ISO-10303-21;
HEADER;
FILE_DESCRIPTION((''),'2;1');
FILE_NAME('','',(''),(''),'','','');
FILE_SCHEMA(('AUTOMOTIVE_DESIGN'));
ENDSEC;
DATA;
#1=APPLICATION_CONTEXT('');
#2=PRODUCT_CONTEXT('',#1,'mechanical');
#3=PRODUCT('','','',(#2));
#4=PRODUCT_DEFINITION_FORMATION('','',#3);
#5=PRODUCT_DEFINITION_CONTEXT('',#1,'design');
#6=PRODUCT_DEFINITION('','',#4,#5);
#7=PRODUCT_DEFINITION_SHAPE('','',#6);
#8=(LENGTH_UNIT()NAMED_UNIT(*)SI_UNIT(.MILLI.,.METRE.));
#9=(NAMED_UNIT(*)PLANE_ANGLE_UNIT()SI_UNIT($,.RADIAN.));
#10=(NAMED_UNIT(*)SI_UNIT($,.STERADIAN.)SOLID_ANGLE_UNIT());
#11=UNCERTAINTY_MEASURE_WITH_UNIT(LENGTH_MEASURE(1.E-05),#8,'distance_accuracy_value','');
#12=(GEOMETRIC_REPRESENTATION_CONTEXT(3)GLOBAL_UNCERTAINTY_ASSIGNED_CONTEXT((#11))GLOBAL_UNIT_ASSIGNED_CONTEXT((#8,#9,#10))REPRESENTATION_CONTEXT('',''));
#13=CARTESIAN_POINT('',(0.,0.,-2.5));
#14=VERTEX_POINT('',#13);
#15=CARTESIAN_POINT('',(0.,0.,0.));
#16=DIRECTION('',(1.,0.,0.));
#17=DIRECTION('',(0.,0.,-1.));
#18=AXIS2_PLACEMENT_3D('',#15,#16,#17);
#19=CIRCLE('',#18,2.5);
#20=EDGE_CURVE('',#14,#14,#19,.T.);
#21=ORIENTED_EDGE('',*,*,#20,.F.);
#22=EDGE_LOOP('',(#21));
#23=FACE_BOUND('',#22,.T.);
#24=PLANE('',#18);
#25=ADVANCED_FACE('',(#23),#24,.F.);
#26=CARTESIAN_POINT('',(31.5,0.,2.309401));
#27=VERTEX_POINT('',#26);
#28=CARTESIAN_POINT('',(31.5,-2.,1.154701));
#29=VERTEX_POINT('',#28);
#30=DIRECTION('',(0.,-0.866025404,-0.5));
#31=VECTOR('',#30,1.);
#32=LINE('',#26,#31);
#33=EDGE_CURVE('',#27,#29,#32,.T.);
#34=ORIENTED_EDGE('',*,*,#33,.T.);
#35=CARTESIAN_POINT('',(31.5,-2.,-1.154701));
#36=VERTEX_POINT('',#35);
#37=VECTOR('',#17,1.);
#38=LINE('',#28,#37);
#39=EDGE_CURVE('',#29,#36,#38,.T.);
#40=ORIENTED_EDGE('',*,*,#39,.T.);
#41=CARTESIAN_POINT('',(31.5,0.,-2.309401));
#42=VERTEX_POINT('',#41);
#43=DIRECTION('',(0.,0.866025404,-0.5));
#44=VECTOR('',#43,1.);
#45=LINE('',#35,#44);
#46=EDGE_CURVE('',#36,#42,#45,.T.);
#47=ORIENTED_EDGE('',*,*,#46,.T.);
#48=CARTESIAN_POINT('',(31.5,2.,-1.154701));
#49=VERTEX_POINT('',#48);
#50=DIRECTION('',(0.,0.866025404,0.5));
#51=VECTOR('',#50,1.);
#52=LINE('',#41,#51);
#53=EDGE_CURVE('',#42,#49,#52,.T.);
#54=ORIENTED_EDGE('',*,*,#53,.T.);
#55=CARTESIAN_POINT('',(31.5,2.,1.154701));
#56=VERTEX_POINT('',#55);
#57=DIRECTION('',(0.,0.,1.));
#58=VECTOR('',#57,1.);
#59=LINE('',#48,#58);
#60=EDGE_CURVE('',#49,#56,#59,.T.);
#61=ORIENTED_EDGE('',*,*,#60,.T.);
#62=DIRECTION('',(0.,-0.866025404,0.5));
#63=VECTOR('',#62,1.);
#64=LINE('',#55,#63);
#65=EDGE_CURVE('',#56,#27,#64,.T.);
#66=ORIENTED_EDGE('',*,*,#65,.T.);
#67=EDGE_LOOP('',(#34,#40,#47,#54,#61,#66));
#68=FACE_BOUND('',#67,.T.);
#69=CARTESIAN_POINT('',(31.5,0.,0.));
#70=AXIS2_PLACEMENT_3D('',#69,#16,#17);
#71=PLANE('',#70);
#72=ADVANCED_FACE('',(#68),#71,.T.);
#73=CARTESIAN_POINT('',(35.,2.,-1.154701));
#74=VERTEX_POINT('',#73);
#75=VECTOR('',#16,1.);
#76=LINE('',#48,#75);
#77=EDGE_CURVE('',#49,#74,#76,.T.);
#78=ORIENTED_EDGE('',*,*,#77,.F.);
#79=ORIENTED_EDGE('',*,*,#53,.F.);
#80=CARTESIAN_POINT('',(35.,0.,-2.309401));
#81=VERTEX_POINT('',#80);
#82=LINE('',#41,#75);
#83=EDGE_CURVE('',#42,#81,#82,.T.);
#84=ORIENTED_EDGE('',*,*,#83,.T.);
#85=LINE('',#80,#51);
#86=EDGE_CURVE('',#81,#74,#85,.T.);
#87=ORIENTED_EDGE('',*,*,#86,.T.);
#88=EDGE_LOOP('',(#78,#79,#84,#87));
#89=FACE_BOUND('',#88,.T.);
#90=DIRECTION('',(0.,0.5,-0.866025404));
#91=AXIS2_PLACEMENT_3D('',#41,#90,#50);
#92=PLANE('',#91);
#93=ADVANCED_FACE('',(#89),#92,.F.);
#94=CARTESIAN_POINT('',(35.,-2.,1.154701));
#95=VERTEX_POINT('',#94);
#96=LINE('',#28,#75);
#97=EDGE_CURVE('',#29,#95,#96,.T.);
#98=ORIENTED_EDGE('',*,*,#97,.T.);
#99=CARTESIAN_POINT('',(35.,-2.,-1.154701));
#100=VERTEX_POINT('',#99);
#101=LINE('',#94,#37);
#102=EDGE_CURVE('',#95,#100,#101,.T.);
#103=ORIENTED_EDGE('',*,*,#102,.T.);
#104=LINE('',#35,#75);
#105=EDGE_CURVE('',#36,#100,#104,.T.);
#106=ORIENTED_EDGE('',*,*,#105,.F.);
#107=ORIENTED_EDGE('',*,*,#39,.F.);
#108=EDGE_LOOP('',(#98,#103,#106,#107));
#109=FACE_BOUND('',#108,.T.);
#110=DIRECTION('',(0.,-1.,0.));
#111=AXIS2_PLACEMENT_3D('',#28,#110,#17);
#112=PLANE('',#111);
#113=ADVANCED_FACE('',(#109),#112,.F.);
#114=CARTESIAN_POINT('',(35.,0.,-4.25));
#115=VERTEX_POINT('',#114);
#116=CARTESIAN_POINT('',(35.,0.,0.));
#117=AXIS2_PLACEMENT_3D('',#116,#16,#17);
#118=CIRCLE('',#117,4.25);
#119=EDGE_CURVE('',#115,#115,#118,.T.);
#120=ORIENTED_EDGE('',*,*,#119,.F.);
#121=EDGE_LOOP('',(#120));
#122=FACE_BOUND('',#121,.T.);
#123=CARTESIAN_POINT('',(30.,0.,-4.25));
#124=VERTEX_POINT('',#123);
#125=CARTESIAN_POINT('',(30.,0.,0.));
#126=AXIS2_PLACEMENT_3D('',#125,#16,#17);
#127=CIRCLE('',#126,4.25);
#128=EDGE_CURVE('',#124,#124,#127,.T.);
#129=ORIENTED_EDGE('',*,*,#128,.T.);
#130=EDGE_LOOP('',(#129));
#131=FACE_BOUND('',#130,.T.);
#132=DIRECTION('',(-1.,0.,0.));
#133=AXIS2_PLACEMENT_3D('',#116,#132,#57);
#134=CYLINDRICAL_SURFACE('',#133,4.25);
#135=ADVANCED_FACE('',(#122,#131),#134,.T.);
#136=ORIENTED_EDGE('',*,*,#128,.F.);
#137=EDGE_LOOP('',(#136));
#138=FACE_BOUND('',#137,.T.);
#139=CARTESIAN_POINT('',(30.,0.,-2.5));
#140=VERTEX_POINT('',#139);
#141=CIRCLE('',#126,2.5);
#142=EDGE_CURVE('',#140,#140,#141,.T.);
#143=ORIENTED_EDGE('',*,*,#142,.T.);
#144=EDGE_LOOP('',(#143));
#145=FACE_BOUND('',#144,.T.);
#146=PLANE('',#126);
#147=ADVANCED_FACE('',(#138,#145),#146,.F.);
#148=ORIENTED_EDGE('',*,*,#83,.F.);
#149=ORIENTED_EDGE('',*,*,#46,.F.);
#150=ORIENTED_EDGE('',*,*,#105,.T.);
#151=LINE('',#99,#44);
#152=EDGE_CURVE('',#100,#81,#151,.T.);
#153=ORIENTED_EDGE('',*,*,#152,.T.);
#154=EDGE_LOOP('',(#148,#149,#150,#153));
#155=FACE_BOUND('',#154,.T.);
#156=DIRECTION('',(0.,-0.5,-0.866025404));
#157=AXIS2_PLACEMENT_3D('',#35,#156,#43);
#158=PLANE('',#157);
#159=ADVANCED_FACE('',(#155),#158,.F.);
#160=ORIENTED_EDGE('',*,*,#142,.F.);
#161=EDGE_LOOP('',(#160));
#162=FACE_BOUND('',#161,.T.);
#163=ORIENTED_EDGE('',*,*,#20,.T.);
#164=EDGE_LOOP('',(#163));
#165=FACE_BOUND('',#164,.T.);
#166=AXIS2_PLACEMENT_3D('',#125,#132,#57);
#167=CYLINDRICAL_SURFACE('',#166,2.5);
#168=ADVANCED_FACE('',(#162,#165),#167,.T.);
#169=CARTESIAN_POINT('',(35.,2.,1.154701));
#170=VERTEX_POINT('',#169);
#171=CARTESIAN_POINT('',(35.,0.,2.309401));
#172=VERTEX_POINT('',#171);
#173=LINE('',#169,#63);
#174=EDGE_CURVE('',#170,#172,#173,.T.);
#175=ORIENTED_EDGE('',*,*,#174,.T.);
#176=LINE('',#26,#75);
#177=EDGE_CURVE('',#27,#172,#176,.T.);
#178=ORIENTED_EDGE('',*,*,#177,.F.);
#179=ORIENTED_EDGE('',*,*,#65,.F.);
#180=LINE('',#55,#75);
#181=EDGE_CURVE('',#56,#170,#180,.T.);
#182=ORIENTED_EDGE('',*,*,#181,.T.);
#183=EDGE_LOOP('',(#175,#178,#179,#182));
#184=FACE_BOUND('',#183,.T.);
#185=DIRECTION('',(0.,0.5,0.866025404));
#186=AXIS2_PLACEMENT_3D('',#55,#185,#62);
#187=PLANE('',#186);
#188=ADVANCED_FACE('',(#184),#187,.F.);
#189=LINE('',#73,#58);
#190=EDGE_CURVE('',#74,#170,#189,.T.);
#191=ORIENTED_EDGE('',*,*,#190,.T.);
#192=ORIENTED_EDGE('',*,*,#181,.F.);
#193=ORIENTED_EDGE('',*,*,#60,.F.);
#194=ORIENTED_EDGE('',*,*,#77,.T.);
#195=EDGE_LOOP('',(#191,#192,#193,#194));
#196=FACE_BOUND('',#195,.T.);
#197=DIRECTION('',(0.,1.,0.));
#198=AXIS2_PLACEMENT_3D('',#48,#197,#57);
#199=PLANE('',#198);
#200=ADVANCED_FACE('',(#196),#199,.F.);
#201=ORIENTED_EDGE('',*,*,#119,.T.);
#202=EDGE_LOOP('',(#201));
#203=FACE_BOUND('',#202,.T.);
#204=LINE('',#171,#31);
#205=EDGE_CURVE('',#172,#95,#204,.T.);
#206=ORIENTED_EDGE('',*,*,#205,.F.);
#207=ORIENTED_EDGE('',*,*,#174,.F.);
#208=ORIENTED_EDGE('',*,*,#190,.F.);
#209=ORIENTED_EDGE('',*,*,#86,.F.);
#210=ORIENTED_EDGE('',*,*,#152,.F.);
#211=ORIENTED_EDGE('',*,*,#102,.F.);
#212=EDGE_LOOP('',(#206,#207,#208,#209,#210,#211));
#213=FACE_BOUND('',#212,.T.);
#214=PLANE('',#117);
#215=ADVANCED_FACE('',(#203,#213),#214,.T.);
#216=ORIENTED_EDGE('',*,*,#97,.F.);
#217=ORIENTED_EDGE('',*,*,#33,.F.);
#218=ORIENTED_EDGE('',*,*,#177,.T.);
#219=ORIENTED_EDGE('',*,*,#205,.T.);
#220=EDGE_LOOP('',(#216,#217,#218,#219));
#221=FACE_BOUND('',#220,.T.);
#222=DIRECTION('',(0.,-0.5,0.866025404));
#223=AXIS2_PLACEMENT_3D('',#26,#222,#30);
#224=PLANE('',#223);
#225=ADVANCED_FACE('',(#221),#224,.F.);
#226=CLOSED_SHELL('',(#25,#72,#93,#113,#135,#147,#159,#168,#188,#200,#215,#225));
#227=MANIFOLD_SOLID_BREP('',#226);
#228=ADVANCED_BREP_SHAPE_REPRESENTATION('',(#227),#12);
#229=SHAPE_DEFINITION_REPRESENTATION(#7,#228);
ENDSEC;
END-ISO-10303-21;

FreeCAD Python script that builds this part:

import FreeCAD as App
import Part
import Sketcher
Q = App.Units.Quantity


def add_polygon(sketch, points):
    """Adds a closed chain of lines whose ends are joined by coincident constraints."""
    first, n = sketch.GeometryCount, len(points)
    for a, b in zip(points, points[1:] + points[:1]):
        sketch.addGeometry(Part.LineSegment(App.Vector(*a, 0), App.Vector(*b, 0)), False)
    for i in range(n):
        sketch.addConstraint(Sketcher.Constraint("Coincident", first + i, 2, first + (i + 1) % n, 1))

doc = App.newDocument("Part")
body = doc.addObject("PartDesign::Body", "Body")

# Sketch on YZ plane
sketch1 = doc.addObject("Sketcher::SketchObject", "Sketch")
body.addObject(sketch1)
sketch1.AttachmentSupport = (doc.YZ_Plane, [""])
sketch1.MapMode = "FlatFace"
sketch1.addGeometry(Part.Circle(App.Vector(0, 0, 0), App.Vector(0, 0, 1), 2.5), False)
sketch1.addConstraint(Sketcher.Constraint("Coincident", 0, 3, -1, 1))
sketch1.addConstraint(Sketcher.Constraint("Diameter", 0, Q("5 mm")))
pad1 = doc.addObject("PartDesign::Pad", "Pad")
body.addObject(pad1)
pad1.Profile = sketch1
pad1.Length = 30

# Sketch on YZ plane
sketch2 = doc.addObject("Sketcher::SketchObject", "Sketch001")
body.addObject(sketch2)
sketch2.AttachmentSupport = (doc.YZ_Plane, [""])
sketch2.MapMode = "FlatFace"
sketch2.AttachmentOffset = App.Placement(App.Vector(0, 0, 30), App.Rotation())
sketch2.addGeometry(Part.Circle(App.Vector(0, 0, 0), App.Vector(0, 0, 1), 4.2), False)
sketch2.addConstraint(Sketcher.Constraint("Coincident", 0, 3, -1, 1))
sketch2.addConstraint(Sketcher.Constraint("Diameter", 0, Q("8.5 mm")))
pad2 = doc.addObject("PartDesign::Pad", "Pad001")
body.addObject(pad2)
pad2.Profile = sketch2
pad2.Length = 5

# Sketch on YZ plane
sketch3 = doc.addObject("Sketcher::SketchObject", "Sketch002")
body.addObject(sketch3)
sketch3.AttachmentSupport = (doc.YZ_Plane, [""])
sketch3.MapMode = "FlatFace"
sketch3.AttachmentOffset = App.Placement(App.Vector(0, 0, 35), App.Rotation())
add_polygon(sketch3, [(0, -2.3), (2, -1.2), (2, 1.2), (0, 2.3), (-2, 1.2), (-2, -1.2)])  # lines 0-5
sketch3.addConstraint(Sketcher.Constraint("Vertical", 1))
sketch3.addConstraint(Sketcher.Constraint("Vertical", 4))
sketch3.addConstraint(Sketcher.Constraint("Symmetric", 0, 2, 3, 2, -1, 1))
sketch3.addConstraint(Sketcher.Constraint("Symmetric", 2, 2, 5, 2, -1, 1))
sketch3.addConstraint(Sketcher.Constraint("PointOnObject", 2, 2, -2))
sketch3.addConstraint(Sketcher.Constraint("Parallel", 2, 5))
sketch3.addConstraint(Sketcher.Constraint("Horizontal", 1, 2, 3, 2))
sketch3.addConstraint(Sketcher.Constraint("Angle", 0, Q("30 deg")))
sketch3.addConstraint(Sketcher.Constraint("DistanceX", -1, 1, 0, 2, Q("2 mm")))
sketch3.addConstraint(Sketcher.Constraint("DistanceY", 1, 1, 1, 2, Q("2.309401 mm")))
pocket1 = doc.addObject("PartDesign::Pocket", "Pocket")
body.addObject(pocket1)
pocket1.Profile = sketch3
pocket1.Length = 3.5

doc.recompute()
